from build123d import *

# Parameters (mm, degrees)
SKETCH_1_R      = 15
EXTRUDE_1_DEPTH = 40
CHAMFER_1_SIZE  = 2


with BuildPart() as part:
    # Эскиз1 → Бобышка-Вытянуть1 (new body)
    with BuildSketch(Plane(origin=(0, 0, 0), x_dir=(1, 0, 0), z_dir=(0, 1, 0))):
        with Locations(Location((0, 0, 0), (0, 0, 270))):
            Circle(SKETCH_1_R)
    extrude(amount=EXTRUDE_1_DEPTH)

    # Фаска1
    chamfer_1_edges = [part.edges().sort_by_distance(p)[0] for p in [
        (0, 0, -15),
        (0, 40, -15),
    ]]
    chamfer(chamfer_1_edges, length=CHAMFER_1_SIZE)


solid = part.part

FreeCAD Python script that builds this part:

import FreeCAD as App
import Part
import Sketcher

V = App.Vector
Q = App.Units.Quantity


def edges_at(feature, points):
    """Names of the edges that pass closest to the given points."""
    edges = feature.Shape.Edges
    near = lambda p: min(range(len(edges)), key=lambda i: edges[i].distToShape(Part.Vertex(*p))[0])
    return sorted({f"Edge{near(p) + 1}" for p in points})

doc = App.newDocument("Part")
body = doc.addObject("PartDesign::Body", "Body")

sketch1 = doc.addObject("Sketcher::SketchObject", "Sketch")
body.addObject(sketch1)
sketch1.AttachmentSupport = (doc.XZ_Plane, [""])
sketch1.MapMode = "FlatFace"
sketch1.addGeometry(Part.Circle(V(0, 0, 0), V(0, 0, 1), 15), False)
sketch1.addConstraint([
    Sketcher.Constraint("Coincident", 0, 3, -1, 1),
    Sketcher.Constraint("Diameter", 0, Q("30 mm")),
])
pad1 = doc.addObject("PartDesign::Pad", "Pad")
body.addObject(pad1)
pad1.Profile = sketch1
pad1.Length = 40
pad1.Reversed = True
doc.recompute()

chamfer = doc.addObject("PartDesign::Chamfer", "Chamfer")
body.addObject(chamfer)
chamfer.Base = (pad1, edges_at(pad1, [(0, 0, -15), (0, 40, -15)]))
chamfer.Size = 2

doc.recompute()
